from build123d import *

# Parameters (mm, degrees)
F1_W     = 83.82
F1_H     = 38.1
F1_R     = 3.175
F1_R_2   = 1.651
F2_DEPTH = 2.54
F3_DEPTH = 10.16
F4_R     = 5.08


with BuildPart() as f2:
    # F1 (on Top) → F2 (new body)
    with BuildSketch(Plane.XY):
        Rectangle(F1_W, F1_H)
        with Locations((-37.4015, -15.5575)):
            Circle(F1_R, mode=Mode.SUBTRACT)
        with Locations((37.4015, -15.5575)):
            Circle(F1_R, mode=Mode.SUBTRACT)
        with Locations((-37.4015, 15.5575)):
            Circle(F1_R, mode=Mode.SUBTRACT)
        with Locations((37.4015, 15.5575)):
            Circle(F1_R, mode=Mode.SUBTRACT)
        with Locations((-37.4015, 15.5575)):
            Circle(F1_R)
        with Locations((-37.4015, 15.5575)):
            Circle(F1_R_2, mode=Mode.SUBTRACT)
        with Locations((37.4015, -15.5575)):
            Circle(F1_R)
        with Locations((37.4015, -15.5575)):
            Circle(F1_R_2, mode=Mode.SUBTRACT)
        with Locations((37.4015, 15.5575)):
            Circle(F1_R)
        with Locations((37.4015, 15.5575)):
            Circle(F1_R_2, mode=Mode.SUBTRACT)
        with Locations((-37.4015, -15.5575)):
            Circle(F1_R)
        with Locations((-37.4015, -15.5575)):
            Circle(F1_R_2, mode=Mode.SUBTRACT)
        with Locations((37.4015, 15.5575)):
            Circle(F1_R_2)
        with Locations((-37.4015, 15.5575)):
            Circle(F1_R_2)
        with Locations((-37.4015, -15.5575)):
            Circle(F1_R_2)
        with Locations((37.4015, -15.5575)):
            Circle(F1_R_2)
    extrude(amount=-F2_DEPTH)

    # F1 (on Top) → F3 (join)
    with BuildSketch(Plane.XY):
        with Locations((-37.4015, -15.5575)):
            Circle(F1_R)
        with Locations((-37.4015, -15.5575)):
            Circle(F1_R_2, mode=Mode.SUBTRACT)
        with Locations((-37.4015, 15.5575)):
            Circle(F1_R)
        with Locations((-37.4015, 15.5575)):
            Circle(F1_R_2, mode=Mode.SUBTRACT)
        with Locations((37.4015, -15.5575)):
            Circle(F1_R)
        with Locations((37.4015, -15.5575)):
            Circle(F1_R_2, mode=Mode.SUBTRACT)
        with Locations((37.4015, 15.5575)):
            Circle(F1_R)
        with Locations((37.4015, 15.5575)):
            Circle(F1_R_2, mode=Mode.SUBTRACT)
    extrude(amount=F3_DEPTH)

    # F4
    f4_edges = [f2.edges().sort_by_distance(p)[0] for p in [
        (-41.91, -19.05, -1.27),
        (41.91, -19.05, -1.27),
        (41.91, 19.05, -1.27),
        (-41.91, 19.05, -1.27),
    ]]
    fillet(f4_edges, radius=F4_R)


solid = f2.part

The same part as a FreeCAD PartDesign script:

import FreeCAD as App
import Part
import Sketcher

V = App.Vector
Q = App.Units.Quantity


def edges_at(feature, points):
    """Names of the edges that pass closest to the given points."""
    edges = feature.Shape.Edges
    near = lambda p: min(range(len(edges)), key=lambda i: edges[i].distToShape(Part.Vertex(*p))[0])
    return sorted({f"Edge{near(p) + 1}" for p in points})


def add_polygon(sketch, points):
    """Adds a closed chain of lines whose ends are joined by coincident constraints."""
    first, n = sketch.GeometryCount, len(points)
    for a, b in zip(points, points[1:] + points[:1]):
        sketch.addGeometry(Part.LineSegment(App.Vector(*a, 0), App.Vector(*b, 0)), False)
    for i in range(n):
        sketch.addConstraint(Sketcher.Constraint("Coincident", first + i, 2, first + (i + 1) % n, 1))

doc = App.newDocument("Part")
body = doc.addObject("PartDesign::Body", "Body")

sketch1 = body.newObject("Sketcher::SketchObject", "Sketch")
sketch1.AttachmentSupport = (doc.getObject("XY_Plane"), [""])
sketch1.MapMode = "FlatFace"
add_polygon(sketch1, [(-41.91, 19.05), (-41.91, -19.05), (41.91, -19.05), (41.91, 19.05)])
sketch1.addConstraint(Sketcher.Constraint("Vertical", 0))
sketch1.addConstraint(Sketcher.Constraint("Horizontal", 1))
sketch1.addConstraint(Sketcher.Constraint("Vertical", 2))
sketch1.addConstraint(Sketcher.Constraint("Horizontal", 3))
sketch1.addConstraint(Sketcher.Constraint("Symmetric", 0, 2, 2, 2, -1, 1))
sketch1.addConstraint(Sketcher.Constraint("DistanceX", 1, 1, 1, 2, Q("3.3 in")))
sketch1.addConstraint(Sketcher.Constraint("DistanceY", 0, 2, 0, 1, Q("1.5 in")))
pad1 = body.newObject("PartDesign::Pad", "Pad")
pad1.Profile = sketch1
pad1.Length = Q("0.1 in")
pad1.Reversed = True

sketch2 = body.newObject("Sketcher::SketchObject", "Sketch001")
sketch2.AttachmentSupport = (doc.getObject("XY_Plane"), [""])
sketch2.MapMode = "FlatFace"
sketch2.addGeometry(Part.Circle(V(-37.4015, -15.5575, 0), V(0, 0, 1), 3.175), False)
sketch2.addGeometry(Part.Circle(V(-37.4015, -15.5575, 0), V(0, 0, 1), 1.651), False)
sketch2.addGeometry(Part.Circle(V(-37.4015, 15.5575, 0), V(0, 0, 1), 3.175), False)
sketch2.addGeometry(Part.Circle(V(-37.4015, 15.5575, 0), V(0, 0, 1), 1.651), False)
sketch2.addGeometry(Part.Circle(V(37.4015, -15.5575, 0), V(0, 0, 1), 3.175), False)
sketch2.addGeometry(Part.Circle(V(37.4015, -15.5575, 0), V(0, 0, 1), 1.651), False)
sketch2.addGeometry(Part.Circle(V(37.4015, 15.5575, 0), V(0, 0, 1), 3.175), False)
sketch2.addGeometry(Part.Circle(V(37.4015, 15.5575, 0), V(0, 0, 1), 1.651), False)
sketch2.addConstraint(Sketcher.Constraint("Coincident", 1, 3, 0, 3))
sketch2.addConstraint(Sketcher.Constraint("Coincident", 3, 3, 2, 3))
sketch2.addConstraint(Sketcher.Constraint("Coincident", 5, 3, 4, 3))
sketch2.addConstraint(Sketcher.Constraint("Coincident", 7, 3, 6, 3))
sketch2.addConstraint(Sketcher.Constraint("Equal", 0, 2))
sketch2.addConstraint(Sketcher.Constraint("Equal", 1, 3))
sketch2.addConstraint(Sketcher.Constraint("Equal", 2, 4))
sketch2.addConstraint(Sketcher.Constraint("Equal", 3, 5))
sketch2.addConstraint(Sketcher.Constraint("Equal", 4, 6))
sketch2.addConstraint(Sketcher.Constraint("Equal", 5, 7))
sketch2.addConstraint(Sketcher.Constraint("Symmetric", 2, 3, 4, 3, -1, 1))
sketch2.addConstraint(Sketcher.Constraint("Symmetric", 0, 3, 6, 3, -1, 1))
sketch2.addConstraint(Sketcher.Constraint("Symmetric", 0, 3, 4, 3, -2))
sketch2.addConstraint(Sketcher.Constraint("Diameter", 0, Q("0.25 in")))
sketch2.addConstraint(Sketcher.Constraint("Diameter", 1, Q("0.13 in")))
sketch2.addConstraint(Sketcher.Constraint("DistanceY", 0, 3, 2, 3, Q("1.225 in")))
sketch2.addConstraint(Sketcher.Constraint("DistanceX", 0, 3, 4, 3, Q("2.945 in")))
pad2 = body.newObject("PartDesign::Pad", "Pad001")
pad2.Profile = sketch2
pad2.Length = Q("0.4 in")
doc.recompute()

fillet = body.newObject("PartDesign::Fillet", "Fillet")
fillet.Base = (pad2, edges_at(pad2, [
    (-41.91, -19.05, -1.27),
    (41.91, -19.05, -1.27),
    (41.91, 19.05, -1.27),
    (-41.91, 19.05, -1.27),
]))
fillet.Radius = Q("0.2 in")

doc.recompute()
